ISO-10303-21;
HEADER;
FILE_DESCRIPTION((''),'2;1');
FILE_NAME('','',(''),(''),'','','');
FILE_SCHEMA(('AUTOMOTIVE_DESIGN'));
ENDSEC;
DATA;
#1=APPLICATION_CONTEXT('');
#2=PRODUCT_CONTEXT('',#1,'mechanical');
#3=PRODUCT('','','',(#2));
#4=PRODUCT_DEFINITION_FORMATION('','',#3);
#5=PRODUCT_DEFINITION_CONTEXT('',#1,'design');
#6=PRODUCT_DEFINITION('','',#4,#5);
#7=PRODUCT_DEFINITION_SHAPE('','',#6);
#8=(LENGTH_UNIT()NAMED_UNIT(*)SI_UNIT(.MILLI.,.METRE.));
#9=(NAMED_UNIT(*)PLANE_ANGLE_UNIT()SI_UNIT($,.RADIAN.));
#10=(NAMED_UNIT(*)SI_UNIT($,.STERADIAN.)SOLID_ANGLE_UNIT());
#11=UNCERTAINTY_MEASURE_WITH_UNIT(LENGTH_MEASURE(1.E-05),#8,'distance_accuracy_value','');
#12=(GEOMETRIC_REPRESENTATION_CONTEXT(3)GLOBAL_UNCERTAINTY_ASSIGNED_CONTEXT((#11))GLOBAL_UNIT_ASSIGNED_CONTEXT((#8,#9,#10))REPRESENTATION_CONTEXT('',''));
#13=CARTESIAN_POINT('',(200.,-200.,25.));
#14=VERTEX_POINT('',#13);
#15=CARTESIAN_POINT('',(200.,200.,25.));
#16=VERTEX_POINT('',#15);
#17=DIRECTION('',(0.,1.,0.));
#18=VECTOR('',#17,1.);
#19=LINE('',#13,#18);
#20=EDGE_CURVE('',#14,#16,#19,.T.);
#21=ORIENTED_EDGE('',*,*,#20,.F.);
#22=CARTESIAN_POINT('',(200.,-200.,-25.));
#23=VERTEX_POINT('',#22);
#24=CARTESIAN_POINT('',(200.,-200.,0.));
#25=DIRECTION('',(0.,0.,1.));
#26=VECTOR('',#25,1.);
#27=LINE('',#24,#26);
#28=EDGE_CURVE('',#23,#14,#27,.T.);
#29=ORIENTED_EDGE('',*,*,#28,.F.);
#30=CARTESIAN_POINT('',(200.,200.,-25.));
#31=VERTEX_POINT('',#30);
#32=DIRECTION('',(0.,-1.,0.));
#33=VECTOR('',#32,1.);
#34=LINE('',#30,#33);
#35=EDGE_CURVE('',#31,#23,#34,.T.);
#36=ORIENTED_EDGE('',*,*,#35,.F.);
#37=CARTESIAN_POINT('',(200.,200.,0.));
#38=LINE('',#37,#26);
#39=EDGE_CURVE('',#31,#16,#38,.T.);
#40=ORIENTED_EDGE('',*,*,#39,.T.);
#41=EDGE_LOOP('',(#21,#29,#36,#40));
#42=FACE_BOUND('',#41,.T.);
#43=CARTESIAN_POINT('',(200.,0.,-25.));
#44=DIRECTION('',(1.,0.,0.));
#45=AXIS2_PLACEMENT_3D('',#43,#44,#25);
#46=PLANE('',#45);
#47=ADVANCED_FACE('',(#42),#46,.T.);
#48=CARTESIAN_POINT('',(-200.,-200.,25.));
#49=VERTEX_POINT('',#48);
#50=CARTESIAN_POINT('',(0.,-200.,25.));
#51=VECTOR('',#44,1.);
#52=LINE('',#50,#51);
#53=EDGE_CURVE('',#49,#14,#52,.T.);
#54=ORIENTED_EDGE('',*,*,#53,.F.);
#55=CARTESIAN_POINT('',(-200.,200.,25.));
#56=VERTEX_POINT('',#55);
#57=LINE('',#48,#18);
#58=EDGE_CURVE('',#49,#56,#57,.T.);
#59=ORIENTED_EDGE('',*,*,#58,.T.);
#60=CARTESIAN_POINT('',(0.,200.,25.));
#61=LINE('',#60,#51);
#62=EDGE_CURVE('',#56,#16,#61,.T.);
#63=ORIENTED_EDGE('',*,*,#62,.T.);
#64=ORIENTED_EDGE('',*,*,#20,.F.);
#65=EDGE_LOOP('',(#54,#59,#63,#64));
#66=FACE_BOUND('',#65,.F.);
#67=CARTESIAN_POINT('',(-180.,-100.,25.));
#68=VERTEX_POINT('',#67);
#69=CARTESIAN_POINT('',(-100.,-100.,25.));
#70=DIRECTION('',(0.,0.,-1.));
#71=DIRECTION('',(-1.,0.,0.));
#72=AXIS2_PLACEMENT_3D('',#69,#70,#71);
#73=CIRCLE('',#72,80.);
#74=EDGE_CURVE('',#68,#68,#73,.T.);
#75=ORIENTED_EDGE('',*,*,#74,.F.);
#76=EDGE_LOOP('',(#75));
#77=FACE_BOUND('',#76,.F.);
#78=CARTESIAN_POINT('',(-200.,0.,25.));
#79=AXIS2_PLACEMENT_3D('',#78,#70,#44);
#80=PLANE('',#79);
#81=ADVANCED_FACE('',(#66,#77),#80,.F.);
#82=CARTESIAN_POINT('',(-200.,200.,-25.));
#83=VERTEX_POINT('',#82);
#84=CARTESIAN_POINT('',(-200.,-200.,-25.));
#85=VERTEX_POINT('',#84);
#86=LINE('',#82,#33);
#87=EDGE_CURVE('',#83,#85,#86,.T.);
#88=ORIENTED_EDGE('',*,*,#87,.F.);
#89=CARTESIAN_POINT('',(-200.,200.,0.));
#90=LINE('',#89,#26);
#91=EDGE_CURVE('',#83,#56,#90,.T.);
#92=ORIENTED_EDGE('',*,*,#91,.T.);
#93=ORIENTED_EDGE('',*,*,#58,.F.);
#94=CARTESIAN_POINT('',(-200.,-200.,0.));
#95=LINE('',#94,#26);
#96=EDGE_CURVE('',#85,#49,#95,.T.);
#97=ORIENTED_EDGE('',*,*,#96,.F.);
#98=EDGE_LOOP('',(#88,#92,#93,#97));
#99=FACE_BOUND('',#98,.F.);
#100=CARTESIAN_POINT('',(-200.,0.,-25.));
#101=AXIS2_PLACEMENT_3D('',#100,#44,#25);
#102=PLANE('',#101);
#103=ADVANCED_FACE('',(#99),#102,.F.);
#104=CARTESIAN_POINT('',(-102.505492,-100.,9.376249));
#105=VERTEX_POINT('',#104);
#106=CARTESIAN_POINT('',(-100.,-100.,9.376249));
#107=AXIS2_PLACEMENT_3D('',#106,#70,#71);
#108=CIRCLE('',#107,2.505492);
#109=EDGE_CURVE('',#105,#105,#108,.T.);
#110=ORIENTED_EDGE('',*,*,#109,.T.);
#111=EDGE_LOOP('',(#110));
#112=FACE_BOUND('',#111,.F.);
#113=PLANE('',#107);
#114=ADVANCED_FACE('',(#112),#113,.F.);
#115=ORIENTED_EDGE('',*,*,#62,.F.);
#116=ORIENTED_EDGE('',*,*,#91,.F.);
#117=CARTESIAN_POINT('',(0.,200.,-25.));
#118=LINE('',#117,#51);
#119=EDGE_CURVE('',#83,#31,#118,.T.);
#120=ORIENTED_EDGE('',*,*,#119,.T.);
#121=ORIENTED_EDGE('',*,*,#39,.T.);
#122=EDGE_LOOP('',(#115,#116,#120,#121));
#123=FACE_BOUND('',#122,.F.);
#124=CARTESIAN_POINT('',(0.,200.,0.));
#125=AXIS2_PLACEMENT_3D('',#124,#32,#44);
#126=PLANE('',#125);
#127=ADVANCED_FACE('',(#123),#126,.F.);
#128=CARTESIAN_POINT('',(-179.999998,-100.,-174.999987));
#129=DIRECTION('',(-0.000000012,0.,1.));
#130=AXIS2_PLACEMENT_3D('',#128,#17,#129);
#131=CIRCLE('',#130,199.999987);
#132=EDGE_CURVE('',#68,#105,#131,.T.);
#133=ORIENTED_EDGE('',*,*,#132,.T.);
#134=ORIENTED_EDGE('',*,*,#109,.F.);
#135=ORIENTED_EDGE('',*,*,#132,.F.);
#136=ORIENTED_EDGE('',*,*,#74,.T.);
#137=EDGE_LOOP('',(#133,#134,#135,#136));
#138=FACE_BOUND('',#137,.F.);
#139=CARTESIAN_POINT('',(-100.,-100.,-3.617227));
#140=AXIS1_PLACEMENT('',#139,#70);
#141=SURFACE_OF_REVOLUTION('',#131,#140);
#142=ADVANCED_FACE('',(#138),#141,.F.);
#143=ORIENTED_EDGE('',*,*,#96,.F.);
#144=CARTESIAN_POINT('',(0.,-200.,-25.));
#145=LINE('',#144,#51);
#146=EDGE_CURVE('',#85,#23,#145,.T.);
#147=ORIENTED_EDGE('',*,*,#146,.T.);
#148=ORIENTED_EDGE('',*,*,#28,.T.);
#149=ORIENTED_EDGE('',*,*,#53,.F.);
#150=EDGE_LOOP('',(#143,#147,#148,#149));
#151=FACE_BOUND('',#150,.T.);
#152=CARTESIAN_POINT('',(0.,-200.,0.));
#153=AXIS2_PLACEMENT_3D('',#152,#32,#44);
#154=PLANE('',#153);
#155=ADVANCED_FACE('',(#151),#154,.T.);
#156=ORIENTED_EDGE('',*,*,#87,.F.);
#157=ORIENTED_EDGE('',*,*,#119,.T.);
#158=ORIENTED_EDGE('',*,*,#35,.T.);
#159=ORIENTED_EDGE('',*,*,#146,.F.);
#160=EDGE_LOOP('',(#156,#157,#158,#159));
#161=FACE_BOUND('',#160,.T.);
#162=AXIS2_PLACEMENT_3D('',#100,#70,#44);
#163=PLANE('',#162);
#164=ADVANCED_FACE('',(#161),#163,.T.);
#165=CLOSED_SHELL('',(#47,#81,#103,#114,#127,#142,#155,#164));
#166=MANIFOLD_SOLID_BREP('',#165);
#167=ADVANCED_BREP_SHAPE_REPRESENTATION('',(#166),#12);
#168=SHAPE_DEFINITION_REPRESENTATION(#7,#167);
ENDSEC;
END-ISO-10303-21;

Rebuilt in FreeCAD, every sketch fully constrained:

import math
import FreeCAD as App
import Part
import Sketcher

V = App.Vector
Q = App.Units.Quantity


def add_polygon(sketch, points):
    """Adds a closed chain of lines whose ends are joined by coincident constraints."""
    first, n = sketch.GeometryCount, len(points)
    for a, b in zip(points, points[1:] + points[:1]):
        sketch.addGeometry(Part.LineSegment(App.Vector(*a, 0), App.Vector(*b, 0)), False)
    for i in range(n):
        sketch.addConstraint(Sketcher.Constraint("Coincident", first + i, 2, first + (i + 1) % n, 1))

doc = App.newDocument("Part")
body = doc.addObject("PartDesign::Body", "Body")

# Sketch on XZ plane
sketch1 = body.newObject("Sketcher::SketchObject", "Sketch")
sketch1.AttachmentSupport = (doc.getObject("XZ_Plane"), [""])
sketch1.MapMode = "FlatFace"
add_polygon(sketch1, [(-200, 25), (-200, -25), (200, -25), (200, 25)])  # lines 0-3
sketch1.addConstraint(Sketcher.Constraint("Vertical", 0))
sketch1.addConstraint(Sketcher.Constraint("Horizontal", 1))
sketch1.addConstraint(Sketcher.Constraint("Vertical", 2))
sketch1.addConstraint(Sketcher.Constraint("Horizontal", 3))
sketch1.addConstraint(Sketcher.Constraint("Symmetric", 0, 2, 2, 2, -1, 1))
sketch1.addConstraint(Sketcher.Constraint("DistanceX", 1, 1, 1, 2, Q("400 mm")))
sketch1.addConstraint(Sketcher.Constraint("DistanceY", 0, 2, 0, 1, Q("50 mm")))
pad1 = body.newObject("PartDesign::Pad", "Pad")
pad1.Profile = sketch1
pad1.Length = 400
pad1.Midplane = True

# Sketch on XZ plane
sketch2 = body.newObject("Sketcher::SketchObject", "Sketch001")
sketch2.AttachmentSupport = (doc.getObject("XZ_Plane"), [""])
sketch2.MapMode = "FlatFace"
sketch2.AttachmentOffset = App.Placement(V(0, 0, 100), App.Rotation())
sketch2.addGeometry(Part.LineSegment(V(-100, 9.4, 0), V(-100, 25, 0)), False)
sketch2.addGeometry(Part.LineSegment(V(-100, 25, 0), V(-180, 25, 0)), False)
sketch2.addGeometry(Part.ArcOfCircle(Part.Circle(V(-180, -175, 0), V(0, 0, 1), 200), math.radians(67), math.radians(90)), False)
sketch2.addGeometry(Part.LineSegment(V(-102.5, 9.4, 0), V(-100, 9.4, 0)), False)
sketch2.addGeometry(Part.LineSegment(V(-100, 25, 0), V(-100, -175, 0)), True)  # axis
sketch2.addConstraint(Sketcher.Constraint("Coincident", 0, 2, 1, 1))
sketch2.addConstraint(Sketcher.Constraint("Tangent", 1, 2, 2, 2))
sketch2.addConstraint(Sketcher.Constraint("Coincident", 2, 1, 3, 1))
sketch2.addConstraint(Sketcher.Constraint("Coincident", 3, 2, 0, 1))
sketch2.addConstraint(Sketcher.Constraint("Vertical", 0))
sketch2.addConstraint(Sketcher.Constraint("Horizontal", 1))
sketch2.addConstraint(Sketcher.Constraint("Horizontal", 3))
sketch2.addConstraint(Sketcher.Constraint("Vertical", 4))
sketch2.addConstraint(Sketcher.Constraint("Coincident", 4, 1, 0, 2))
sketch2.addConstraint(Sketcher.Constraint("Horizontal", 2, 3, 4, 2))
sketch2.addConstraint(Sketcher.Constraint("DistanceX", 1, 2, 1, 1, Q("80 mm")))
sketch2.addConstraint(Sketcher.Constraint("DistanceX", 0, 2, -1, 1, Q("100 mm")))
sketch2.addConstraint(Sketcher.Constraint("DistanceY", -1, 1, 0, 2, Q("25 mm")))
sketch2.addConstraint(Sketcher.Constraint("Radius", 2, Q("199.999987 mm")))
sketch2.addConstraint(Sketcher.Constraint("DistanceY", 0, 1, 0, 2, Q("15.623751 mm")))
groove = body.newObject("PartDesign::Groove", "Groove")
groove.Profile = sketch2
groove.ReferenceAxis = (sketch2, ["Axis0"])
groove.Angle = 360

doc.recompute()
